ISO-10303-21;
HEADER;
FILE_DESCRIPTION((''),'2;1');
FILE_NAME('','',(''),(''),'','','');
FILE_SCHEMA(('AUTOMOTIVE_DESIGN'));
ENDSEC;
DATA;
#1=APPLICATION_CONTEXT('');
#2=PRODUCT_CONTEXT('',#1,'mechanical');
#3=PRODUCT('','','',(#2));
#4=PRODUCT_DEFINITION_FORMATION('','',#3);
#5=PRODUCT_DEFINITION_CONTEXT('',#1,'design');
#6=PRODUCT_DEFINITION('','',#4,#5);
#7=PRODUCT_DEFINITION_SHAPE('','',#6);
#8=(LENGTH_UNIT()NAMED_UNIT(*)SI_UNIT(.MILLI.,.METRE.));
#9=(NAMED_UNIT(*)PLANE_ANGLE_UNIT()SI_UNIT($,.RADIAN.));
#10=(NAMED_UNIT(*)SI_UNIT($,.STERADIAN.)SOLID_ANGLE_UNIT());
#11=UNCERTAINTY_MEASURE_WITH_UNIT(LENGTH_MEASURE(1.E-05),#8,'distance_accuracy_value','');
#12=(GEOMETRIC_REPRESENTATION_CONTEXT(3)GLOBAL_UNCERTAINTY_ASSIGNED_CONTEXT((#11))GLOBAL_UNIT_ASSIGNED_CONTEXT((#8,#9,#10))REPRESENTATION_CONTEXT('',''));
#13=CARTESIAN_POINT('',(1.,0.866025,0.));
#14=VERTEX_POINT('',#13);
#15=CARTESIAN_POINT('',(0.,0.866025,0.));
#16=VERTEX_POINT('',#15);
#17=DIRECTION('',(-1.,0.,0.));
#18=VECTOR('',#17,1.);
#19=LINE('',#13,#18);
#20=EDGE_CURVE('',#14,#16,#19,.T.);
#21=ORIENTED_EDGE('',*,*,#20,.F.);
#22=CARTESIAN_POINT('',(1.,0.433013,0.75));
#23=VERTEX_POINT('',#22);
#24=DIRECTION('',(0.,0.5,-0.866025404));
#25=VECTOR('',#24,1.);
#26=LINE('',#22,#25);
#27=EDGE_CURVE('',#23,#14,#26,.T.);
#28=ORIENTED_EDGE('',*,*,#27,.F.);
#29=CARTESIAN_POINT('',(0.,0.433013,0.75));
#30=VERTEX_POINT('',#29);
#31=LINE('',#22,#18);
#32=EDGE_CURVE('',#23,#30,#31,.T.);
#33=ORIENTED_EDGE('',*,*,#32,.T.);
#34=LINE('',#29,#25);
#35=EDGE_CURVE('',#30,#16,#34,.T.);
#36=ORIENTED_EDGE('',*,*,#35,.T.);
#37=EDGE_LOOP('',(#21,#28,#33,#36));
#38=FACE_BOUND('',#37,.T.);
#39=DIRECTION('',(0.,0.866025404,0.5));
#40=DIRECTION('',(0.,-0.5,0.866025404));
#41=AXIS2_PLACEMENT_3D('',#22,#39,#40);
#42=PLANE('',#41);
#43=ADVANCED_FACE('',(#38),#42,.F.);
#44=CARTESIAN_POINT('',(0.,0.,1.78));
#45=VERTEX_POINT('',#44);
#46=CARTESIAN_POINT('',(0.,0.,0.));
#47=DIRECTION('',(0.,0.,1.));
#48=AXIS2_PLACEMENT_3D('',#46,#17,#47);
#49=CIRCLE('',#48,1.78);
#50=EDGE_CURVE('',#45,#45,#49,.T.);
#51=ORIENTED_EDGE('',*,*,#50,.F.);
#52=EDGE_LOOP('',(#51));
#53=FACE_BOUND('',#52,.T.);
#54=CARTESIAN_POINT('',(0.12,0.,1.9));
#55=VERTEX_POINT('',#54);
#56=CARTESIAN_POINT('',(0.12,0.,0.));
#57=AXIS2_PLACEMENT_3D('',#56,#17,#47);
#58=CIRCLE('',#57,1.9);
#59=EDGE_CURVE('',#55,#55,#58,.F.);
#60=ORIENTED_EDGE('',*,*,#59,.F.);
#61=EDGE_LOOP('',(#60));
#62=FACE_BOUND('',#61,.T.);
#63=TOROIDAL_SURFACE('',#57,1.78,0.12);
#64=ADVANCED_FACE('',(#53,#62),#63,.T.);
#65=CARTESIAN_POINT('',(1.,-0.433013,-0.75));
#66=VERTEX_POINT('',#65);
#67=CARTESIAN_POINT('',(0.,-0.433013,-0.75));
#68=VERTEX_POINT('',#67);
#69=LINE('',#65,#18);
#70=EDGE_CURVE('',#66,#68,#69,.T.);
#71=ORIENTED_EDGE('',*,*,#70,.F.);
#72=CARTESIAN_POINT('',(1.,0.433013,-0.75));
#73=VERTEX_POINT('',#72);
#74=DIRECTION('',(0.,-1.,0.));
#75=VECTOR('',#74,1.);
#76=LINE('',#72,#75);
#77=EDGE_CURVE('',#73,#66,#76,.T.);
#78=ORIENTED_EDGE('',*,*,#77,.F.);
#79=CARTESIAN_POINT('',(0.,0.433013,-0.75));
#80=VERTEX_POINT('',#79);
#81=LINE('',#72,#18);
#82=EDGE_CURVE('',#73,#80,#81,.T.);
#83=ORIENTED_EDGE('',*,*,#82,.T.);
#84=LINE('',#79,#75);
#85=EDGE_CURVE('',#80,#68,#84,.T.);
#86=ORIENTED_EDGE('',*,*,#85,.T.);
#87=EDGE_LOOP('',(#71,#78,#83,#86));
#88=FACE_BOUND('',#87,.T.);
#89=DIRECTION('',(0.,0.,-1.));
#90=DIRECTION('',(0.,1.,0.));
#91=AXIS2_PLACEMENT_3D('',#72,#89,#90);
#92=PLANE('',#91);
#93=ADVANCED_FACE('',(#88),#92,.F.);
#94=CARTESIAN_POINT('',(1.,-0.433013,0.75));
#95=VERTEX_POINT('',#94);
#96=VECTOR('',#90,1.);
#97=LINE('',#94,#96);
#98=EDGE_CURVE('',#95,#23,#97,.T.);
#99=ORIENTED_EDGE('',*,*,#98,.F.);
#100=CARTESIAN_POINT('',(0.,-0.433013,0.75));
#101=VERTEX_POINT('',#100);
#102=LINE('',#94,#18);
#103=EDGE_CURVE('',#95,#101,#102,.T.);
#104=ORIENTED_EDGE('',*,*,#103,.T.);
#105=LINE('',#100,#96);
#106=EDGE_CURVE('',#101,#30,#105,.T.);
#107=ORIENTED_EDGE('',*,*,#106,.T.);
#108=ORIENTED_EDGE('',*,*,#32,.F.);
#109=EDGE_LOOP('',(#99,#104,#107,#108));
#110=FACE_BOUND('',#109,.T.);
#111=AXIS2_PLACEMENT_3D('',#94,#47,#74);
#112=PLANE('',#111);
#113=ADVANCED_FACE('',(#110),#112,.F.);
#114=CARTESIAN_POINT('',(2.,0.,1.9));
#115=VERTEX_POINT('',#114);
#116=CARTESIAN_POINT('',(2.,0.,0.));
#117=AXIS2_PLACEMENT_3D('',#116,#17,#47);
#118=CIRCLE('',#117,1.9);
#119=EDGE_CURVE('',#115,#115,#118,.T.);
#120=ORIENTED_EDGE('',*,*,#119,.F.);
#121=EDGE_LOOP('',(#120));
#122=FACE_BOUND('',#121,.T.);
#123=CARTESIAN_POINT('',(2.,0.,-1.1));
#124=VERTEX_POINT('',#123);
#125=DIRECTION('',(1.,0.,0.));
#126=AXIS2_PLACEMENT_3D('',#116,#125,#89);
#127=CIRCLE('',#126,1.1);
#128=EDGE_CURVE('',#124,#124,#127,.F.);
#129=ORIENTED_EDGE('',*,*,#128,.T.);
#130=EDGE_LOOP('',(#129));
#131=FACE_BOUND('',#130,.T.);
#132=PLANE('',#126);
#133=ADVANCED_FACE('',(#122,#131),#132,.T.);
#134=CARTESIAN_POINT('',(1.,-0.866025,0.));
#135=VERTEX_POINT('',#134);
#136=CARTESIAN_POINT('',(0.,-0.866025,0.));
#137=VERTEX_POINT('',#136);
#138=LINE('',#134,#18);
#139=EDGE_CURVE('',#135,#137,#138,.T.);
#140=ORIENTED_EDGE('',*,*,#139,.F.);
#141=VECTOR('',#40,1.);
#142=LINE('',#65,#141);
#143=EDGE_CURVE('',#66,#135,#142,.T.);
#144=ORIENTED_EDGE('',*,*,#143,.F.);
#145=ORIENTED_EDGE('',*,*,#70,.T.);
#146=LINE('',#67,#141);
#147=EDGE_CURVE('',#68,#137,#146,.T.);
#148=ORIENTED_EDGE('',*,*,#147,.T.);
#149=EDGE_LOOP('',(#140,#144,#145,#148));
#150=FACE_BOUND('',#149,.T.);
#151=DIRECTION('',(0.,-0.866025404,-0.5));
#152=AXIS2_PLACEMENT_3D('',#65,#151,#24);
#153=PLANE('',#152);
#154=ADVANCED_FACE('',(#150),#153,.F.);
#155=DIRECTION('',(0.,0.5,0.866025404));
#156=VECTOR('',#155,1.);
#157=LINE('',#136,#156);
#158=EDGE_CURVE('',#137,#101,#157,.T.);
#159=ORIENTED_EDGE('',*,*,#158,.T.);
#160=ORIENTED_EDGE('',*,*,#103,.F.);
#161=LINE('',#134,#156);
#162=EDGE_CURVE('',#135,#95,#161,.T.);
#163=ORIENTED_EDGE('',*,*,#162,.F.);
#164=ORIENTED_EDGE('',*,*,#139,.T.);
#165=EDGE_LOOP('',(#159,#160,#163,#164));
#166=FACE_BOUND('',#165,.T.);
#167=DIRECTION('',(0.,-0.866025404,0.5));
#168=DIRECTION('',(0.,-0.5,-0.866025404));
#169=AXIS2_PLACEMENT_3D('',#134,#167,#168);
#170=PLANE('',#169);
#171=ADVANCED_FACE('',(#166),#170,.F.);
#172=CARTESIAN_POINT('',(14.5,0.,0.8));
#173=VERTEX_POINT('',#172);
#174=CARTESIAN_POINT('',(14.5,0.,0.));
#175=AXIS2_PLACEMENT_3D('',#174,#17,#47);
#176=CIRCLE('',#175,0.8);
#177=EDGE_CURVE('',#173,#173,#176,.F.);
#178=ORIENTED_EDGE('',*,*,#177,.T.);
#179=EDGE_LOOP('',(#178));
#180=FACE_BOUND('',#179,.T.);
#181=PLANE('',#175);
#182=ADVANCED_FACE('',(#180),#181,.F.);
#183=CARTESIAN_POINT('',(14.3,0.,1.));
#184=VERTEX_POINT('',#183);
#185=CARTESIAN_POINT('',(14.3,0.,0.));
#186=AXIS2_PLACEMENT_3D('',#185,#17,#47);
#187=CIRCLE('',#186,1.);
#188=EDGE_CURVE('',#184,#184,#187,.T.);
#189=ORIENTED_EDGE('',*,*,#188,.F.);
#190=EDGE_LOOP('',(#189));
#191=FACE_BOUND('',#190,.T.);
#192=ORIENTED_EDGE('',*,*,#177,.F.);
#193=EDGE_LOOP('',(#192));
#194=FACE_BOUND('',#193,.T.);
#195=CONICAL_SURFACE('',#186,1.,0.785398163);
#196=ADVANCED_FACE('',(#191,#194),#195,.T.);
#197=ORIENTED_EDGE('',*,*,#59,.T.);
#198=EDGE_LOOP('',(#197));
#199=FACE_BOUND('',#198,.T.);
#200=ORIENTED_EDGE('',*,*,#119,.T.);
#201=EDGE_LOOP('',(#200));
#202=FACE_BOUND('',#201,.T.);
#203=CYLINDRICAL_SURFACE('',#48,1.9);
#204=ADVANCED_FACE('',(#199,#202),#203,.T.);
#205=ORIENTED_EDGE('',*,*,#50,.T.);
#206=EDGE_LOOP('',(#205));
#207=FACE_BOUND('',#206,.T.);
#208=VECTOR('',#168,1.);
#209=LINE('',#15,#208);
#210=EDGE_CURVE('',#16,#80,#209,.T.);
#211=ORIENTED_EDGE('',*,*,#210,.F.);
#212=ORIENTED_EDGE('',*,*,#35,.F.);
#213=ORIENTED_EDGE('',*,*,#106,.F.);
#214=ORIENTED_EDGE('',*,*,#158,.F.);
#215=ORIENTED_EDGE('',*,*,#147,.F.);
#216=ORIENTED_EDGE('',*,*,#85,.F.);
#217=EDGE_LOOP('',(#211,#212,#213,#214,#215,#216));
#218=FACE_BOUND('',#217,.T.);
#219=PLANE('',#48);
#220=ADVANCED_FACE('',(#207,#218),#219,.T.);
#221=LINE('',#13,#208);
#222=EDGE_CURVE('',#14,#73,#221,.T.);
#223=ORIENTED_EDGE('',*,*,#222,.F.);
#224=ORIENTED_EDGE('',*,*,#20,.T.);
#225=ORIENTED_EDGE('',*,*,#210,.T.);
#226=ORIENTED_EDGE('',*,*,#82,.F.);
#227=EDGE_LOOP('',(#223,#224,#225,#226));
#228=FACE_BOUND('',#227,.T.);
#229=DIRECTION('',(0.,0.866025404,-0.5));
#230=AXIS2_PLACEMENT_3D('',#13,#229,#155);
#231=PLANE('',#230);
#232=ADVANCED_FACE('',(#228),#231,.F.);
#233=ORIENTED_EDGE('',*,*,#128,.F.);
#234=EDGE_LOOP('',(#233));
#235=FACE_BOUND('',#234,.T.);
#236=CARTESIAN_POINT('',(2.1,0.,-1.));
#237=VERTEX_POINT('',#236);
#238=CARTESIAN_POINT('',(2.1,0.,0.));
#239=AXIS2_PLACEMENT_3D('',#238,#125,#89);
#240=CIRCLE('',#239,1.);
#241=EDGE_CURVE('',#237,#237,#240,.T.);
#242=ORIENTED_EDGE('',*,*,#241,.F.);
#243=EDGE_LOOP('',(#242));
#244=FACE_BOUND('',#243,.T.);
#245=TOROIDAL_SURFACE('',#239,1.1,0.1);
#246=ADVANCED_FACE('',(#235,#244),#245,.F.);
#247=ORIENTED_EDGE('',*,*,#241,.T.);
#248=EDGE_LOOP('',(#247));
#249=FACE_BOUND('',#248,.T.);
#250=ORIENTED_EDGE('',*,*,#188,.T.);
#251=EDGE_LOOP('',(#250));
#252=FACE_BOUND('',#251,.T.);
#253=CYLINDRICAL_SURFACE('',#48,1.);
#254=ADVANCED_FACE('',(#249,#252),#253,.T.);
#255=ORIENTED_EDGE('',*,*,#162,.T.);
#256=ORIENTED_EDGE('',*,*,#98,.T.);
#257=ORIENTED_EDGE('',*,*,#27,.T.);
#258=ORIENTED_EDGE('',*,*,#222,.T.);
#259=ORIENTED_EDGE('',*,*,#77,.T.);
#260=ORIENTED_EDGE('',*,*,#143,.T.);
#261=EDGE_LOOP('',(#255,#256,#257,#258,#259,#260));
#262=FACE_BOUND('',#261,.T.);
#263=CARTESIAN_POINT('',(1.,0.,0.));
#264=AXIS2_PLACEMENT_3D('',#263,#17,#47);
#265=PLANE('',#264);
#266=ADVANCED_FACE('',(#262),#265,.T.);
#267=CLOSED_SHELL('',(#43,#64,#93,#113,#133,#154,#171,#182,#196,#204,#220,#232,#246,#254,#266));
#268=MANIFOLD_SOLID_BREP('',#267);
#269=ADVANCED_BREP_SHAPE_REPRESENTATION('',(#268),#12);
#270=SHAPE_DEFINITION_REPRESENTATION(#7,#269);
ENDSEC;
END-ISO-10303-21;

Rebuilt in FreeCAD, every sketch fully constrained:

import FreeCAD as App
import Part
import Sketcher
Q = App.Units.Quantity


def edges_at(feature, points):
    """Names of the edges that pass closest to the given points."""
    edges = feature.Shape.Edges
    near = lambda p: min(range(len(edges)), key=lambda i: edges[i].distToShape(Part.Vertex(*p))[0])
    return sorted({f"Edge{near(p) + 1}" for p in points})


def add_polygon(sketch, points):
    """Adds a closed chain of lines whose ends are joined by coincident constraints."""
    first, n = sketch.GeometryCount, len(points)
    for a, b in zip(points, points[1:] + points[:1]):
        sketch.addGeometry(Part.LineSegment(App.Vector(*a, 0), App.Vector(*b, 0)), False)
    for i in range(n):
        sketch.addConstraint(Sketcher.Constraint("Coincident", first + i, 2, first + (i + 1) % n, 1))

doc = App.newDocument("Part")
body = doc.addObject("PartDesign::Body", "Body")

# Sketch on XY plane
sketch1 = body.newObject("Sketcher::SketchObject", "Sketch")
sketch1.AttachmentSupport = (doc.getObject("XY_Plane"), [""])
sketch1.MapMode = "FlatFace"
add_polygon(sketch1, [(14.5, 0), (14.5, 1), (2, 1), (2, 1.9), (0, 1.9), (0, 0)])  # lines 0-5
sketch1.addConstraint([
    Sketcher.Constraint("Vertical", 0),
    Sketcher.Constraint("Horizontal", 1),
    Sketcher.Constraint("Vertical", 2),
    Sketcher.Constraint("Horizontal", 3),
    Sketcher.Constraint("Vertical", 4),
    Sketcher.Constraint("Horizontal", 5),
    Sketcher.Constraint("Coincident", 4, 2, -1, 1),
    Sketcher.Constraint("DistanceX", 3, 2, 3, 1, 2.0),
    Sketcher.Constraint("DistanceY", 0, 1, 0, 2, 1.0),
    Sketcher.Constraint("DistanceX", 1, 2, 1, 1, 12.5),
    Sketcher.Constraint("DistanceY", 2, 1, 2, 2, 0.9),
])
revolution = body.newObject("PartDesign::Revolution", "Revolution")
revolution.Profile = sketch1
revolution.ReferenceAxis = (sketch1, ["H_Axis"])
revolution.Angle = 360
doc.recompute()

fillet = body.newObject("PartDesign::Fillet", "Fillet")
fillet.Base = (revolution, edges_at(revolution, [(2, 0, -1)]))
fillet.Radius = 0.1
doc.recompute()

fillet2 = body.newObject("PartDesign::Fillet", "Fillet001")
fillet2.Base = (fillet, edges_at(fillet, [(0, 0, -1.9)]))
fillet2.Radius = 0.12
doc.recompute()

chamfer = body.newObject("PartDesign::Chamfer", "Chamfer")
chamfer.Base = (fillet2, edges_at(fillet2, [(14.5, 0, -1)]))
chamfer.Size = 0.2

# Sketch on YZ plane
sketch2 = body.newObject("Sketcher::SketchObject", "Sketch001")
sketch2.AttachmentSupport = (doc.getObject("YZ_Plane"), [""])
sketch2.MapMode = "FlatFace"
add_polygon(sketch2, [(0.9, 0), (0.4, -0.8), (-0.4, -0.8), (-0.9, 0), (-0.4, 0.8), (0.4, 0.8)])  # lines 0-5
sketch2.addConstraint([
    Sketcher.Constraint("Horizontal", 1),
    Sketcher.Constraint("Horizontal", 4),
    Sketcher.Constraint("Symmetric", 0, 2, 3, 2, -1, 1),
    Sketcher.Constraint("Symmetric", 2, 2, 5, 2, -1, 1),
    Sketcher.Constraint("PointOnObject", 2, 2, -1),
    Sketcher.Constraint("Parallel", 2, 5),
    Sketcher.Constraint("Vertical", 1, 2, 3, 2),
    Sketcher.Constraint("Angle", 0, Q("-120 deg")),
    Sketcher.Constraint("DistanceY", 1, 2, 3, 2, 1.5),
    Sketcher.Constraint("DistanceX", 1, 2, 1, 1, 0.866025),
])
pocket1 = body.newObject("PartDesign::Pocket", "Pocket")
pocket1.Profile = sketch2
pocket1.Length = 1
pocket1.Reversed = True

doc.recompute()
